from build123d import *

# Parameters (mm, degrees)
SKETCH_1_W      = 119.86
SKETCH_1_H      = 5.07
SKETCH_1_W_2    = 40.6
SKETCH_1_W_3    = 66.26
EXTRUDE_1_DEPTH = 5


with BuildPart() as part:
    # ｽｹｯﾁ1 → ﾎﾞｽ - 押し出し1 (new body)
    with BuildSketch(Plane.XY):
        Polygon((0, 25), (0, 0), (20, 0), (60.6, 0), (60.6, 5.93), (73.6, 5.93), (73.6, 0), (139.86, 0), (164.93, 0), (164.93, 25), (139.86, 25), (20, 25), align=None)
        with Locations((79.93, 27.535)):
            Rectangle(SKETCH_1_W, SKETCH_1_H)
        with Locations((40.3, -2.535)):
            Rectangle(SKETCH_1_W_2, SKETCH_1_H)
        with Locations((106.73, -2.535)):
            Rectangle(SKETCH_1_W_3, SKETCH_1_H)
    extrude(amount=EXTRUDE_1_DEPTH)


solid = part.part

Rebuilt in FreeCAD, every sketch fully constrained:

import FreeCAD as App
import Part
import Sketcher
from FreeCAD import Vector
Q = App.Units.Quantity


def add_polygon(sketch, points):
    """Adds a closed chain of lines whose ends are joined by coincident constraints."""
    first, n = sketch.GeometryCount, len(points)
    for a, b in zip(points, points[1:] + points[:1]):
        sketch.addGeometry(Part.LineSegment(App.Vector(*a, 0), App.Vector(*b, 0)), False)
    for i in range(n):
        sketch.addConstraint(Sketcher.Constraint("Coincident", first + i, 2, first + (i + 1) % n, 1))

doc = App.newDocument("Part")
params = doc.addObject("Spreadsheet::Sheet", "Params")
for row, (alias, value) in enumerate([
    ("sketch1_width", "20 mm"),
    ("sketch1_width2", "13 mm"),
    ("sketch1_height", "25 mm"),
    ("sketch1_height2", "11 mm"),
    ("sketch1_width3", "40.6 mm"),
    ("pad1_length", "5 mm"),
], start=1):
    params.set(f"A{row}", alias)
    params.set(f"B{row}", "=" + value)
    params.setAlias(f"B{row}", alias)

body = doc.addObject("PartDesign::Body", "Body")

sketch1 = body.newObject("Sketcher::SketchObject", "Sketch")
sketch1.AttachmentSupport = (doc.getObject("XY_Plane"), [""])
sketch1.MapMode = "FlatFace"
add_polygon(sketch1, [(0, 25), (0, 0), (20, 0), (20, -5), (61, -5), (61, 6), (74, 6), (74, -5), (140, -5), (140, 0), (165, 0), (165, 25), (140, 25), (140, 30), (20, 30), (20, 25)])
sketch1.addConstraint(Sketcher.Constraint("Vertical", 0))
sketch1.addConstraint(Sketcher.Constraint("Horizontal", 1))
sketch1.addConstraint(Sketcher.Constraint("Vertical", 2))
sketch1.addConstraint(Sketcher.Constraint("Horizontal", 3))
sketch1.addConstraint(Sketcher.Constraint("Vertical", 4))
sketch1.addConstraint(Sketcher.Constraint("Horizontal", 5))
sketch1.addConstraint(Sketcher.Constraint("Vertical", 6))
sketch1.addConstraint(Sketcher.Constraint("Horizontal", 7))
sketch1.addConstraint(Sketcher.Constraint("Vertical", 8))
sketch1.addConstraint(Sketcher.Constraint("Horizontal", 9))
sketch1.addConstraint(Sketcher.Constraint("Vertical", 10))
sketch1.addConstraint(Sketcher.Constraint("Horizontal", 11))
sketch1.addConstraint(Sketcher.Constraint("Vertical", 12))
sketch1.addConstraint(Sketcher.Constraint("Horizontal", 13))
sketch1.addConstraint(Sketcher.Constraint("Vertical", 14))
sketch1.addConstraint(Sketcher.Constraint("Horizontal", 15))
sketch1.addConstraint(Sketcher.Constraint("Coincident", 0, 2, -1, 1))
sketch1.addConstraint(Sketcher.Constraint("PointOnObject", 8, 2, -1))
sketch1.addConstraint(Sketcher.Constraint("Horizontal", 3, 2, 6, 2))
sketch1.addConstraint(Sketcher.Constraint("Horizontal", 11, 2, 14, 2))
sketch1.addConstraint(Sketcher.Constraint("Vertical", 8, 2, 11, 2))
sketch1.addConstraint(Sketcher.Constraint("Vertical", 2, 2, 13, 2))
sketch1.addConstraint(Sketcher.Constraint("Equal", 8, 12))
sketch1.addConstraint(Sketcher.Constraint("DistanceX", 1, 1, 1, 2, Q("20 mm")))
sketch1.addConstraint(Sketcher.Constraint("DistanceX", 5, 1, 5, 2, Q("13 mm")))
sketch1.addConstraint(Sketcher.Constraint("DistanceY", 0, 2, 0, 1, Q("25 mm")))
sketch1.addConstraint(Sketcher.Constraint("DistanceY", 4, 1, 4, 2, Q("11 mm")))
sketch1.addConstraint(Sketcher.Constraint("DistanceX", 3, 1, 3, 2, Q("40.6 mm")))
sketch1.addConstraint(Sketcher.Constraint("DistanceX", 7, 1, 7, 2, Q("66.26 mm")))
sketch1.addConstraint(Sketcher.Constraint("DistanceX", 9, 1, 9, 2, Q("25.07 mm")))
sketch1.addConstraint(Sketcher.Constraint("DistanceY", 2, 2, 2, 1, Q("5.07 mm")))
sketch1.setExpression("Constraints[39]", "Params.sketch1_width")
sketch1.setExpression("Constraints[40]", "Params.sketch1_width2")
sketch1.setExpression("Constraints[41]", "Params.sketch1_height")
sketch1.setExpression("Constraints[42]", "Params.sketch1_height2")
sketch1.setExpression("Constraints[43]", "Params.sketch1_width3")
pad1 = body.newObject("PartDesign::Pad", "Pad")
pad1.Profile = sketch1
pad1.setExpression("Length", "Params.pad1_length")

doc.recompute()
